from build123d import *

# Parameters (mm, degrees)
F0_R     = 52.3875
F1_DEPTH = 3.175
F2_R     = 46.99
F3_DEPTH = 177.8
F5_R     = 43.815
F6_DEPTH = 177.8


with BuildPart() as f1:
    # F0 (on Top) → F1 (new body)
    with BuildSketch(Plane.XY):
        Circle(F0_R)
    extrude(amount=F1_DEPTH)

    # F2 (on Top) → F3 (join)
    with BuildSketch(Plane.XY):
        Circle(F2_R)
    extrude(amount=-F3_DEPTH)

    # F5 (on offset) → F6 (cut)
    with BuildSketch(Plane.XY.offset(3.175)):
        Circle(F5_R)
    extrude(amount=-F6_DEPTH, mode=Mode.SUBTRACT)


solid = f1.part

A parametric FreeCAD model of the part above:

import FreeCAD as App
import Part
import Sketcher

V = App.Vector
Q = App.Units.Quantity

doc = App.newDocument("Part")
body = doc.addObject("PartDesign::Body", "Body")

# Sketch on XY plane
sketch1 = doc.addObject("Sketcher::SketchObject", "Sketch")
body.addObject(sketch1)
sketch1.AttachmentSupport = (doc.XY_Plane, [""])
sketch1.MapMode = "FlatFace"
sketch1.addGeometry(Part.Circle(V(0, 0, 0), V(0, 0, 1), 52.3875), False)
sketch1.addConstraint([
    Sketcher.Constraint("Coincident", 0, 3, -1, 1),
    Sketcher.Constraint("Diameter", 0, Q("4.125 in")),
])
pad1 = doc.addObject("PartDesign::Pad", "Pad")
body.addObject(pad1)
pad1.Profile = sketch1
pad1.Length = Q("0.125 in")

# Sketch on XY plane
sketch2 = doc.addObject("Sketcher::SketchObject", "Sketch001")
body.addObject(sketch2)
sketch2.AttachmentSupport = (doc.XY_Plane, [""])
sketch2.MapMode = "FlatFace"
sketch2.addGeometry(Part.Circle(V(0, 0, 0), V(0, 0, 1), 46.99), False)
sketch2.addConstraint([
    Sketcher.Constraint("Coincident", 0, 3, -1, 1),
    Sketcher.Constraint("Diameter", 0, Q("3.7 in")),
])
pad2 = doc.addObject("PartDesign::Pad", "Pad001")
body.addObject(pad2)
pad2.Profile = sketch2
pad2.Length = Q("7 in")
pad2.Reversed = True

# Sketch on XY plane
sketch3 = doc.addObject("Sketcher::SketchObject", "Sketch002")
body.addObject(sketch3)
sketch3.AttachmentSupport = (doc.XY_Plane, [""])
sketch3.MapMode = "FlatFace"
sketch3.AttachmentOffset = App.Placement(V(0, 0, 0.125 * 25.4), App.Rotation())
sketch3.addGeometry(Part.Circle(V(0, 0, 0), V(0, 0, 1), 43.815), False)
sketch3.addConstraint([
    Sketcher.Constraint("Coincident", 0, 3, -1, 1),
    Sketcher.Constraint("Diameter", 0, Q("3.45 in")),
])
pocket1 = doc.addObject("PartDesign::Pocket", "Pocket")
body.addObject(pocket1)
pocket1.Profile = sketch3
pocket1.Length = Q("7 in")

doc.recompute()
